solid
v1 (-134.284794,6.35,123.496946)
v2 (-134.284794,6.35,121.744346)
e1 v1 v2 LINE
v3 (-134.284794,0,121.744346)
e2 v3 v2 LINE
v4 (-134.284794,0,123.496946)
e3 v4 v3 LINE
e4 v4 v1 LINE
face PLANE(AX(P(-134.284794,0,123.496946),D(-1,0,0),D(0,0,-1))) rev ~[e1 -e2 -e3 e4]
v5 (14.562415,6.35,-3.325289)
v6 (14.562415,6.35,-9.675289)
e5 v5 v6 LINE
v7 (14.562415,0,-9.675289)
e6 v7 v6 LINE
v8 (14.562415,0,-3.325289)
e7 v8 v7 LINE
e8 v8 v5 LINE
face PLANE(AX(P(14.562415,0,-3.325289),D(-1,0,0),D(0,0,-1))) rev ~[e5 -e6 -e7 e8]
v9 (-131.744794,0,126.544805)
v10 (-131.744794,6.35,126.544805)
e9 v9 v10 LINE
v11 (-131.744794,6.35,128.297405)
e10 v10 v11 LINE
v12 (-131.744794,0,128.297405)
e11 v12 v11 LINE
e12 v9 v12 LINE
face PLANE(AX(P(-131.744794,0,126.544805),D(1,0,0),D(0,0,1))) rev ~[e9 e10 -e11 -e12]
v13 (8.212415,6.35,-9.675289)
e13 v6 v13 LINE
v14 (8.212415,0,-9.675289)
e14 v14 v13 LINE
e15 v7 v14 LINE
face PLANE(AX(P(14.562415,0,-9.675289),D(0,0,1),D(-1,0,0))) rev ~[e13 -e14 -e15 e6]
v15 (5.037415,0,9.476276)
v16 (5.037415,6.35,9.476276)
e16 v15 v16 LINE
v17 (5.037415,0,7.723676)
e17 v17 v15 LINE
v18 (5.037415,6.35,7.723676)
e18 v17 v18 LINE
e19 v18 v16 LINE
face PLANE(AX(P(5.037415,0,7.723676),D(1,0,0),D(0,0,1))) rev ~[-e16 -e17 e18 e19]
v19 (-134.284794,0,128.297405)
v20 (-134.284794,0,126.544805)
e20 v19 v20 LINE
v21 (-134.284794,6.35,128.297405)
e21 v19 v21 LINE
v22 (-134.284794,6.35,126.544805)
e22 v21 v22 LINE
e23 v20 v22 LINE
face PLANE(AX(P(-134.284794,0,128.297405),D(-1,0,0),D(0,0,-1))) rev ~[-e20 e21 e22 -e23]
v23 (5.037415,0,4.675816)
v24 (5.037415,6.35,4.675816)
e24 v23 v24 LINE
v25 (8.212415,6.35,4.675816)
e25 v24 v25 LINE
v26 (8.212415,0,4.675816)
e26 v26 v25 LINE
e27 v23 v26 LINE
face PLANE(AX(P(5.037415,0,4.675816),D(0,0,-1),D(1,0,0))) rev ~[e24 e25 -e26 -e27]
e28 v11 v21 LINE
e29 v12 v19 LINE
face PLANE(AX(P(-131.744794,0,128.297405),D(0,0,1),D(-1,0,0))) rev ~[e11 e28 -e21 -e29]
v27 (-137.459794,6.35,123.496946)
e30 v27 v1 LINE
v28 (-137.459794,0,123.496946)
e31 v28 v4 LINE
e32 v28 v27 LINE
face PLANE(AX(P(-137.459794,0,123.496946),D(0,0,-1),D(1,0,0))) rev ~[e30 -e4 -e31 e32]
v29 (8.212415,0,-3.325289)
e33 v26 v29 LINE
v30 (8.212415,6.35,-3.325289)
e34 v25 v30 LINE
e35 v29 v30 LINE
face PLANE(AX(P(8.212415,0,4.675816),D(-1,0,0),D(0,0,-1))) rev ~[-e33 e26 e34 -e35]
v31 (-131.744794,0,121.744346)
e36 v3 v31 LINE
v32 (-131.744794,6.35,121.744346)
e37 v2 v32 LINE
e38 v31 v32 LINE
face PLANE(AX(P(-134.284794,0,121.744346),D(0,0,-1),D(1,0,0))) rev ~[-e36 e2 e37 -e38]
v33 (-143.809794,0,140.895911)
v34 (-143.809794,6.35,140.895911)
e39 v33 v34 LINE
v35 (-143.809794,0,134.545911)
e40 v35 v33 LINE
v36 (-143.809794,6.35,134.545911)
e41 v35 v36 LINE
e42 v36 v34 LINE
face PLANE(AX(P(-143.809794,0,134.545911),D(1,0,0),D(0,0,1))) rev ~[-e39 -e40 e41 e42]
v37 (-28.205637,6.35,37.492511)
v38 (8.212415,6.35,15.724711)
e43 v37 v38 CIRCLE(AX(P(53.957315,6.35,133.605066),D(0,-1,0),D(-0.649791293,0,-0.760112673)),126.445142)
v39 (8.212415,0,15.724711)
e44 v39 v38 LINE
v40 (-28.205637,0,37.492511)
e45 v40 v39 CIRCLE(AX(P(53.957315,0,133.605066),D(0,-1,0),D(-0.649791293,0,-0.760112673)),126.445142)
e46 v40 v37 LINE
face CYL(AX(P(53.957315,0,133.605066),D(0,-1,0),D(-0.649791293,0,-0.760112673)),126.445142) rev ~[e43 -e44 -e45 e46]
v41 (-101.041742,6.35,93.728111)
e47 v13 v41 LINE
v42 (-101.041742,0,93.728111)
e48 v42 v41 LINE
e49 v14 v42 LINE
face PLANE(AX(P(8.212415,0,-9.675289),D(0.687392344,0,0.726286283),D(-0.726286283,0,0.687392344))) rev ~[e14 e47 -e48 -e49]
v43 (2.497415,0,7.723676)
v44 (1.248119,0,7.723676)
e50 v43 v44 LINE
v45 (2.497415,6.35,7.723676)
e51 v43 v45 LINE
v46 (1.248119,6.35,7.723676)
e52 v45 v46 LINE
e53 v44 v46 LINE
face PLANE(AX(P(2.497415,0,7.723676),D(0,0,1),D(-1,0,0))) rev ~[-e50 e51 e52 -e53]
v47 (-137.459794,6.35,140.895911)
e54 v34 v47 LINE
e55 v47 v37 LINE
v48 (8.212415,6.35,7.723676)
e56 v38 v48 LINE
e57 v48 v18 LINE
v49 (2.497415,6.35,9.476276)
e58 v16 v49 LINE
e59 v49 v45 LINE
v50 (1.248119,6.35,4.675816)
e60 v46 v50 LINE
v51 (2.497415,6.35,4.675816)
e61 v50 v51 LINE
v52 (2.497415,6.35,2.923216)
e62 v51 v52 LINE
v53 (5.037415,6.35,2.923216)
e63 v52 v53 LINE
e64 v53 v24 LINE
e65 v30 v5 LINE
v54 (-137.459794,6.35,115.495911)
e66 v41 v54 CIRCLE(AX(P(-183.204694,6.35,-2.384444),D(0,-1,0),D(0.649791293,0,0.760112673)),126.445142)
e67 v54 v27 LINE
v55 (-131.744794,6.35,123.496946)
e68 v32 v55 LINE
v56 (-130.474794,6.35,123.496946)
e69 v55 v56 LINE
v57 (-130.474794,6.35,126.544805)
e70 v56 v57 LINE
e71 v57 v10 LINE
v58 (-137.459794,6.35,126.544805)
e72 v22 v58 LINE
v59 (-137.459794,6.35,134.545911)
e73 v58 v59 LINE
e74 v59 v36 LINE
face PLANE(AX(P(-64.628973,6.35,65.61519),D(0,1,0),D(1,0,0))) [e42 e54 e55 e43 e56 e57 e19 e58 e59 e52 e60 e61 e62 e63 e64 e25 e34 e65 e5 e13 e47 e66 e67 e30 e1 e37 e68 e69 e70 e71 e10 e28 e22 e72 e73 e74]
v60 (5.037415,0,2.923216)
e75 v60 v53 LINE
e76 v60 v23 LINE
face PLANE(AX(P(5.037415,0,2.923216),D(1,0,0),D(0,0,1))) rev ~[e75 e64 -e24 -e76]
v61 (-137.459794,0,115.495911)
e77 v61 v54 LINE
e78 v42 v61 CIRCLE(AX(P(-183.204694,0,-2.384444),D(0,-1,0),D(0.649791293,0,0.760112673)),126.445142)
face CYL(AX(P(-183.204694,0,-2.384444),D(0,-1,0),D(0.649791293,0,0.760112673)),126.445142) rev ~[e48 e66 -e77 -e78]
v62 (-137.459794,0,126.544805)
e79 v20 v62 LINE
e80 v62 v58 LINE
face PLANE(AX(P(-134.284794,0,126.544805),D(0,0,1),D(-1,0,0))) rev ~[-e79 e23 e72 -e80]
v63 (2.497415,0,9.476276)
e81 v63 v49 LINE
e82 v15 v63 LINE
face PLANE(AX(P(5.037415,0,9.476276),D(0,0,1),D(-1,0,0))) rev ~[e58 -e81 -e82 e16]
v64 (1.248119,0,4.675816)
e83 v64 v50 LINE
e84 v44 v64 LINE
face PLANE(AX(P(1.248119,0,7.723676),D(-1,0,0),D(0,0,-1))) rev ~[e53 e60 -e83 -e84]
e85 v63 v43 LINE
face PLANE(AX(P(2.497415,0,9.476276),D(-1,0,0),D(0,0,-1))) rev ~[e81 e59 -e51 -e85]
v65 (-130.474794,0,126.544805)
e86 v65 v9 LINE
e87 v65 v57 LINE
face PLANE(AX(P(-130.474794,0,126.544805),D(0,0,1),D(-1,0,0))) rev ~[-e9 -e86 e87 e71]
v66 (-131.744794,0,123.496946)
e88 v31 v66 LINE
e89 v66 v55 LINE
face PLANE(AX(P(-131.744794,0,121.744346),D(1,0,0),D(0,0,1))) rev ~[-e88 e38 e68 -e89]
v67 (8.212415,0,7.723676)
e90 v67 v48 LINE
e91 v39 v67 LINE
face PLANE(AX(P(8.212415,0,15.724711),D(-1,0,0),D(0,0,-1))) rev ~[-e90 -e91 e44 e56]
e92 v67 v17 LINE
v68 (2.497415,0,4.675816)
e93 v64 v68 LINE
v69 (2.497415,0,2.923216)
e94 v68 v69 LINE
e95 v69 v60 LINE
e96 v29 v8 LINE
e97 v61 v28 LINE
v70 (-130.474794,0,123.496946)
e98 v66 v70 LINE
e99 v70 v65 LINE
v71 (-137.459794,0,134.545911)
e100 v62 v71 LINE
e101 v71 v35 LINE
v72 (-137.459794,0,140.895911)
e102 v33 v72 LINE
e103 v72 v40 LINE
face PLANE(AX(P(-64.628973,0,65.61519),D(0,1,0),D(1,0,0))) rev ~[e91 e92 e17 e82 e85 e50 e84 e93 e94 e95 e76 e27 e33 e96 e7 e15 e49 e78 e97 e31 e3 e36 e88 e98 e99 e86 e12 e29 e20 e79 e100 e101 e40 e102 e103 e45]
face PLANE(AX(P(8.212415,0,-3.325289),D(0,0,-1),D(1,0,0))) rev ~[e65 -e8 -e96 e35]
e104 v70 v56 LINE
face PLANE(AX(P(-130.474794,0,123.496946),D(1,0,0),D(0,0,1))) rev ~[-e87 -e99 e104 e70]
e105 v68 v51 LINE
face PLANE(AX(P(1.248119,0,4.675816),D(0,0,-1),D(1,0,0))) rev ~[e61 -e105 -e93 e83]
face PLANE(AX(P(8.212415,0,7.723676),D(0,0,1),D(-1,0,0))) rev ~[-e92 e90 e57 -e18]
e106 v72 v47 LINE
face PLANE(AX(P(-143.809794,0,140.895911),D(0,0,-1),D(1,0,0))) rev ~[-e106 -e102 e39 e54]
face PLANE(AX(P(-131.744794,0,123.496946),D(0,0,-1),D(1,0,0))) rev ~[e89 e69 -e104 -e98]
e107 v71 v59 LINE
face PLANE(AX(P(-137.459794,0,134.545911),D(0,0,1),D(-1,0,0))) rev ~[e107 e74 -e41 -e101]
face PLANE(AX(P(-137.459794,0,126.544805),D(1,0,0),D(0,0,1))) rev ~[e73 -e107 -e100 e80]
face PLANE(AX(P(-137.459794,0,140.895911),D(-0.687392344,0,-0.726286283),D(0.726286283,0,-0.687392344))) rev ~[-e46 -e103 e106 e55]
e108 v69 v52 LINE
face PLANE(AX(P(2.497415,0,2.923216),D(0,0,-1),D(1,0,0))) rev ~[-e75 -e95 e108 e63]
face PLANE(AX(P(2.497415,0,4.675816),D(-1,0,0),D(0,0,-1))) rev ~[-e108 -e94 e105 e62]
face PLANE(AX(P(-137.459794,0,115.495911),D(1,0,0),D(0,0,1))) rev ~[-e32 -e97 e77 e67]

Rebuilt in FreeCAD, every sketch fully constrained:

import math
import FreeCAD as App
import Part
import Sketcher
Q = App.Units.Quantity

doc = App.newDocument("Part")
body = doc.addObject("PartDesign::Body", "Body")

# Sketch on XZ plane
sketch1 = body.newObject("Sketcher::SketchObject", "Sketch")
sketch1.AttachmentSupport = (doc.getObject("XZ_Plane"), [""])
sketch1.MapMode = "FlatFace"
sketch1.addGeometry([
    Part.LineSegment(App.Vector(1.2, 4.7, 0), App.Vector(2.5, 4.7, 0)),  # 0
    Part.LineSegment(App.Vector(2.5, 4.7, 0), App.Vector(2.5, 2.9, 0)),  # 1
    Part.LineSegment(App.Vector(2.5, 2.9, 0), App.Vector(5, 2.9, 0)),  # 2
    Part.LineSegment(App.Vector(5, 2.9, 0), App.Vector(5, 4.7, 0)),  # 3
    Part.LineSegment(App.Vector(5, 4.7, 0), App.Vector(8.2, 4.7, 0)),  # 4
    Part.LineSegment(App.Vector(8.2, 4.7, 0), App.Vector(8.2, -3.3, 0)),  # 5
    Part.LineSegment(App.Vector(8.2, -3.3, 0), App.Vector(14.6, -3.3, 0)),  # 6
    Part.LineSegment(App.Vector(14.6, -3.3, 0), App.Vector(14.6, -9.7, 0)),  # 7
    Part.LineSegment(App.Vector(14.6, -9.7, 0), App.Vector(8.2, -9.7, 0)),  # 8
    Part.LineSegment(App.Vector(8.2, -9.7, 0), App.Vector(-101, 93.7, 0)),  # 9
    Part.ArcOfCircle(Part.Circle(App.Vector(-183.2, -2.4, 0), App.Vector(0, 0, 1), 126.4), math.radians(49.47), math.radians(68.79)),  # 10
    Part.LineSegment(App.Vector(-137.5, 115.5, 0), App.Vector(-137.5, 123.5, 0)),  # 11
    Part.LineSegment(App.Vector(-137.5, 123.5, 0), App.Vector(-134.3, 123.5, 0)),  # 12
    Part.LineSegment(App.Vector(-134.3, 123.5, 0), App.Vector(-134.3, 121.7, 0)),  # 13
    Part.LineSegment(App.Vector(-134.3, 121.7, 0), App.Vector(-131.7, 121.7, 0)),  # 14
    Part.LineSegment(App.Vector(-131.7, 121.7, 0), App.Vector(-131.7, 123.5, 0)),  # 15
    Part.LineSegment(App.Vector(-131.7, 123.5, 0), App.Vector(-130.5, 123.5, 0)),  # 16
    Part.LineSegment(App.Vector(-130.5, 123.5, 0), App.Vector(-130.5, 126.5, 0)),  # 17
    Part.LineSegment(App.Vector(-130.5, 126.5, 0), App.Vector(-131.7, 126.5, 0)),  # 18
    Part.LineSegment(App.Vector(-131.7, 126.5, 0), App.Vector(-131.7, 128.3, 0)),  # 19
    Part.LineSegment(App.Vector(-131.7, 128.3, 0), App.Vector(-134.3, 128.3, 0)),  # 20
    Part.LineSegment(App.Vector(-134.3, 128.3, 0), App.Vector(-134.3, 126.5, 0)),  # 21
    Part.LineSegment(App.Vector(-134.3, 126.5, 0), App.Vector(-137.5, 126.5, 0)),  # 22
    Part.LineSegment(App.Vector(-137.5, 126.5, 0), App.Vector(-137.5, 134.5, 0)),  # 23
    Part.LineSegment(App.Vector(-137.5, 134.5, 0), App.Vector(-143.8, 134.5, 0)),  # 24
    Part.LineSegment(App.Vector(-143.8, 134.5, 0), App.Vector(-143.8, 140.9, 0)),  # 25
    Part.LineSegment(App.Vector(-143.8, 140.9, 0), App.Vector(-137.5, 140.9, 0)),  # 26
    Part.LineSegment(App.Vector(-137.5, 140.9, 0), App.Vector(-28.2, 37.5, 0)),  # 27
    Part.ArcOfCircle(Part.Circle(App.Vector(54, 133.6, 0), App.Vector(0, 0, 1), 126.4), math.radians(-130.53), math.radians(-111.21)),  # 28
    Part.LineSegment(App.Vector(8.2, 15.7, 0), App.Vector(8.2, 7.7, 0)),  # 29
    Part.LineSegment(App.Vector(8.2, 7.7, 0), App.Vector(5, 7.7, 0)),  # 30
    Part.LineSegment(App.Vector(5, 7.7, 0), App.Vector(5, 9.5, 0)),  # 31
    Part.LineSegment(App.Vector(5, 9.5, 0), App.Vector(2.5, 9.5, 0)),  # 32
    Part.LineSegment(App.Vector(2.5, 9.5, 0), App.Vector(2.5, 7.7, 0)),  # 33
    Part.LineSegment(App.Vector(2.5, 7.7, 0), App.Vector(1.2, 7.7, 0)),  # 34
    Part.LineSegment(App.Vector(1.2, 7.7, 0), App.Vector(1.2, 4.7, 0)),  # 35
], False)
sketch1.addConstraint([
    Sketcher.Constraint("Coincident", 0, 2, 1, 1),
    Sketcher.Constraint("Coincident", 1, 2, 2, 1),
    Sketcher.Constraint("Coincident", 2, 2, 3, 1),
    Sketcher.Constraint("Coincident", 3, 2, 4, 1),
    Sketcher.Constraint("Coincident", 4, 2, 5, 1),
    Sketcher.Constraint("Coincident", 5, 2, 6, 1),
    Sketcher.Constraint("Coincident", 6, 2, 7, 1),
    Sketcher.Constraint("Coincident", 7, 2, 8, 1),
    Sketcher.Constraint("Coincident", 8, 2, 9, 1),
    Sketcher.Constraint("Coincident", 9, 2, 10, 1),
    Sketcher.Constraint("Coincident", 10, 2, 11, 1),
    Sketcher.Constraint("Coincident", 11, 2, 12, 1),
    Sketcher.Constraint("Coincident", 12, 2, 13, 1),
    Sketcher.Constraint("Coincident", 13, 2, 14, 1),
    Sketcher.Constraint("Coincident", 14, 2, 15, 1),
    Sketcher.Constraint("Coincident", 15, 2, 16, 1),
    Sketcher.Constraint("Coincident", 16, 2, 17, 1),
    Sketcher.Constraint("Coincident", 17, 2, 18, 1),
    Sketcher.Constraint("Coincident", 18, 2, 19, 1),
    Sketcher.Constraint("Coincident", 19, 2, 20, 1),
    Sketcher.Constraint("Coincident", 20, 2, 21, 1),
    Sketcher.Constraint("Coincident", 21, 2, 22, 1),
    Sketcher.Constraint("Coincident", 22, 2, 23, 1),
    Sketcher.Constraint("Coincident", 23, 2, 24, 1),
    Sketcher.Constraint("Coincident", 24, 2, 25, 1),
    Sketcher.Constraint("Coincident", 25, 2, 26, 1),
    Sketcher.Constraint("Coincident", 26, 2, 27, 1),
    Sketcher.Constraint("Coincident", 27, 2, 28, 1),
    Sketcher.Constraint("Coincident", 28, 2, 29, 1),
    Sketcher.Constraint("Coincident", 29, 2, 30, 1),
    Sketcher.Constraint("Coincident", 30, 2, 31, 1),
    Sketcher.Constraint("Coincident", 31, 2, 32, 1),
    Sketcher.Constraint("Coincident", 32, 2, 33, 1),
    Sketcher.Constraint("Coincident", 33, 2, 34, 1),
    Sketcher.Constraint("Coincident", 34, 2, 35, 1),
    Sketcher.Constraint("Coincident", 35, 2, 0, 1),
    Sketcher.Constraint("Horizontal", 0),
    Sketcher.Constraint("Vertical", 1),
    Sketcher.Constraint("Horizontal", 2),
    Sketcher.Constraint("Vertical", 3),
    Sketcher.Constraint("Horizontal", 4),
    Sketcher.Constraint("Vertical", 5),
    Sketcher.Constraint("Horizontal", 6),
    Sketcher.Constraint("Vertical", 7),
    Sketcher.Constraint("Horizontal", 8),
    Sketcher.Constraint("Vertical", 11),
    Sketcher.Constraint("Horizontal", 12),
    Sketcher.Constraint("Vertical", 13),
    Sketcher.Constraint("Horizontal", 14),
    Sketcher.Constraint("Vertical", 15),
    Sketcher.Constraint("Horizontal", 16),
    Sketcher.Constraint("Vertical", 17),
    Sketcher.Constraint("Horizontal", 18),
    Sketcher.Constraint("Vertical", 19),
    Sketcher.Constraint("Horizontal", 20),
    Sketcher.Constraint("Vertical", 21),
    Sketcher.Constraint("Horizontal", 22),
    Sketcher.Constraint("Vertical", 23),
    Sketcher.Constraint("Horizontal", 24),
    Sketcher.Constraint("Vertical", 25),
    Sketcher.Constraint("Horizontal", 26),
    Sketcher.Constraint("Vertical", 29),
    Sketcher.Constraint("Horizontal", 30),
    Sketcher.Constraint("Vertical", 31),
    Sketcher.Constraint("Horizontal", 32),
    Sketcher.Constraint("Vertical", 33),
    Sketcher.Constraint("Horizontal", 34),
    Sketcher.Constraint("Vertical", 35),
    Sketcher.Constraint("Equal", 10, 28),
    Sketcher.Constraint("Parallel", 9, 27),
    Sketcher.Constraint("Horizontal", 0, 2, 3, 2),
    Sketcher.Constraint("Horizontal", 12, 2, 15, 2),
    Sketcher.Constraint("Horizontal", 18, 2, 21, 2),
    Sketcher.Constraint("Horizontal", 30, 2, 33, 2),
    Sketcher.Constraint("Vertical", 5, 2, 8, 2),
    Sketcher.Constraint("Vertical", 15, 2, 18, 2),
    Sketcher.Constraint("Vertical", 13, 2, 20, 2),
    Sketcher.Constraint("Vertical", 11, 2, 22, 2),
    Sketcher.Constraint("Vertical", 23, 2, 26, 2),
    Sketcher.Constraint("Vertical", 8, 2, 28, 2),
    Sketcher.Constraint("Vertical", 3, 2, 30, 2),
    Sketcher.Constraint("Vertical", 1, 2, 32, 2),
    Sketcher.Constraint("Equal", 4, 12),
    Sketcher.Constraint("Equal", 2, 14),
    Sketcher.Constraint("Equal", 8, 24),
    Sketcher.Constraint("Equal", 26, 7),
    Sketcher.Constraint("Equal", 3, 13),
    Sketcher.Constraint("Equal", 15, 19),
    Sketcher.Constraint("Equal", 5, 23),
    Sketcher.Constraint("Equal", 7, 25),
    Sketcher.Constraint("Equal", 11, 29),
    Sketcher.Constraint("Equal", 21, 31),
    Sketcher.Constraint("Equal", 17, 35),
    Sketcher.Constraint("Equal", 9, 27),
    Sketcher.Constraint("DistanceX", 2, 1, 2, 2, Q("0.1 in")),
    Sketcher.Constraint("DistanceX", 6, 1, 6, 2, Q("0.25 in")),
    Sketcher.Constraint("DistanceX", 16, 1, 16, 2, Q("0.05 in")),
    Sketcher.Constraint("DistanceX", 4, 1, 4, 2, Q("0.125 in")),
    Sketcher.Constraint("DistanceY", 1, 2, 1, 1, Q("0.069 in")),
    Sketcher.Constraint("DistanceY", 9, 2, 10, 2, Q("0.857 in")),
    Sketcher.Constraint("Radius", 10, Q("126.445142 mm")),
    Sketcher.Constraint("Distance", 9, Q("150.428501 mm")),
    Sketcher.Constraint("DistanceY", 17, 1, 17, 2, Q("3.047859 mm")),
    Sketcher.Constraint("DistanceX", 0, 2, 28, 3, Q("51.4599 mm")),
    Sketcher.Constraint("DistanceX", 0, 1, 0, 2, Q("1.249296 mm")),
    Sketcher.Constraint("DistanceY", 5, 2, 5, 1, Q("8.001105 mm")),
    Sketcher.Constraint("DistanceY", 11, 1, 11, 2, Q("8.001035 mm")),
    Sketcher.Constraint("DistanceY", 5, 2, -1, 1, Q("3.325289 mm")),
    Sketcher.Constraint("DistanceX", 9, 2, -1, 1, Q("101.041742 mm")),
    Sketcher.Constraint("DistanceY", -1, 1, 9, 2, Q("93.728111 mm")),
])
pad1 = body.newObject("PartDesign::Pad", "Pad")
pad1.Profile = sketch1
pad1.Length = Q("0.25 in")
pad1.Reversed = True

doc.recompute()
